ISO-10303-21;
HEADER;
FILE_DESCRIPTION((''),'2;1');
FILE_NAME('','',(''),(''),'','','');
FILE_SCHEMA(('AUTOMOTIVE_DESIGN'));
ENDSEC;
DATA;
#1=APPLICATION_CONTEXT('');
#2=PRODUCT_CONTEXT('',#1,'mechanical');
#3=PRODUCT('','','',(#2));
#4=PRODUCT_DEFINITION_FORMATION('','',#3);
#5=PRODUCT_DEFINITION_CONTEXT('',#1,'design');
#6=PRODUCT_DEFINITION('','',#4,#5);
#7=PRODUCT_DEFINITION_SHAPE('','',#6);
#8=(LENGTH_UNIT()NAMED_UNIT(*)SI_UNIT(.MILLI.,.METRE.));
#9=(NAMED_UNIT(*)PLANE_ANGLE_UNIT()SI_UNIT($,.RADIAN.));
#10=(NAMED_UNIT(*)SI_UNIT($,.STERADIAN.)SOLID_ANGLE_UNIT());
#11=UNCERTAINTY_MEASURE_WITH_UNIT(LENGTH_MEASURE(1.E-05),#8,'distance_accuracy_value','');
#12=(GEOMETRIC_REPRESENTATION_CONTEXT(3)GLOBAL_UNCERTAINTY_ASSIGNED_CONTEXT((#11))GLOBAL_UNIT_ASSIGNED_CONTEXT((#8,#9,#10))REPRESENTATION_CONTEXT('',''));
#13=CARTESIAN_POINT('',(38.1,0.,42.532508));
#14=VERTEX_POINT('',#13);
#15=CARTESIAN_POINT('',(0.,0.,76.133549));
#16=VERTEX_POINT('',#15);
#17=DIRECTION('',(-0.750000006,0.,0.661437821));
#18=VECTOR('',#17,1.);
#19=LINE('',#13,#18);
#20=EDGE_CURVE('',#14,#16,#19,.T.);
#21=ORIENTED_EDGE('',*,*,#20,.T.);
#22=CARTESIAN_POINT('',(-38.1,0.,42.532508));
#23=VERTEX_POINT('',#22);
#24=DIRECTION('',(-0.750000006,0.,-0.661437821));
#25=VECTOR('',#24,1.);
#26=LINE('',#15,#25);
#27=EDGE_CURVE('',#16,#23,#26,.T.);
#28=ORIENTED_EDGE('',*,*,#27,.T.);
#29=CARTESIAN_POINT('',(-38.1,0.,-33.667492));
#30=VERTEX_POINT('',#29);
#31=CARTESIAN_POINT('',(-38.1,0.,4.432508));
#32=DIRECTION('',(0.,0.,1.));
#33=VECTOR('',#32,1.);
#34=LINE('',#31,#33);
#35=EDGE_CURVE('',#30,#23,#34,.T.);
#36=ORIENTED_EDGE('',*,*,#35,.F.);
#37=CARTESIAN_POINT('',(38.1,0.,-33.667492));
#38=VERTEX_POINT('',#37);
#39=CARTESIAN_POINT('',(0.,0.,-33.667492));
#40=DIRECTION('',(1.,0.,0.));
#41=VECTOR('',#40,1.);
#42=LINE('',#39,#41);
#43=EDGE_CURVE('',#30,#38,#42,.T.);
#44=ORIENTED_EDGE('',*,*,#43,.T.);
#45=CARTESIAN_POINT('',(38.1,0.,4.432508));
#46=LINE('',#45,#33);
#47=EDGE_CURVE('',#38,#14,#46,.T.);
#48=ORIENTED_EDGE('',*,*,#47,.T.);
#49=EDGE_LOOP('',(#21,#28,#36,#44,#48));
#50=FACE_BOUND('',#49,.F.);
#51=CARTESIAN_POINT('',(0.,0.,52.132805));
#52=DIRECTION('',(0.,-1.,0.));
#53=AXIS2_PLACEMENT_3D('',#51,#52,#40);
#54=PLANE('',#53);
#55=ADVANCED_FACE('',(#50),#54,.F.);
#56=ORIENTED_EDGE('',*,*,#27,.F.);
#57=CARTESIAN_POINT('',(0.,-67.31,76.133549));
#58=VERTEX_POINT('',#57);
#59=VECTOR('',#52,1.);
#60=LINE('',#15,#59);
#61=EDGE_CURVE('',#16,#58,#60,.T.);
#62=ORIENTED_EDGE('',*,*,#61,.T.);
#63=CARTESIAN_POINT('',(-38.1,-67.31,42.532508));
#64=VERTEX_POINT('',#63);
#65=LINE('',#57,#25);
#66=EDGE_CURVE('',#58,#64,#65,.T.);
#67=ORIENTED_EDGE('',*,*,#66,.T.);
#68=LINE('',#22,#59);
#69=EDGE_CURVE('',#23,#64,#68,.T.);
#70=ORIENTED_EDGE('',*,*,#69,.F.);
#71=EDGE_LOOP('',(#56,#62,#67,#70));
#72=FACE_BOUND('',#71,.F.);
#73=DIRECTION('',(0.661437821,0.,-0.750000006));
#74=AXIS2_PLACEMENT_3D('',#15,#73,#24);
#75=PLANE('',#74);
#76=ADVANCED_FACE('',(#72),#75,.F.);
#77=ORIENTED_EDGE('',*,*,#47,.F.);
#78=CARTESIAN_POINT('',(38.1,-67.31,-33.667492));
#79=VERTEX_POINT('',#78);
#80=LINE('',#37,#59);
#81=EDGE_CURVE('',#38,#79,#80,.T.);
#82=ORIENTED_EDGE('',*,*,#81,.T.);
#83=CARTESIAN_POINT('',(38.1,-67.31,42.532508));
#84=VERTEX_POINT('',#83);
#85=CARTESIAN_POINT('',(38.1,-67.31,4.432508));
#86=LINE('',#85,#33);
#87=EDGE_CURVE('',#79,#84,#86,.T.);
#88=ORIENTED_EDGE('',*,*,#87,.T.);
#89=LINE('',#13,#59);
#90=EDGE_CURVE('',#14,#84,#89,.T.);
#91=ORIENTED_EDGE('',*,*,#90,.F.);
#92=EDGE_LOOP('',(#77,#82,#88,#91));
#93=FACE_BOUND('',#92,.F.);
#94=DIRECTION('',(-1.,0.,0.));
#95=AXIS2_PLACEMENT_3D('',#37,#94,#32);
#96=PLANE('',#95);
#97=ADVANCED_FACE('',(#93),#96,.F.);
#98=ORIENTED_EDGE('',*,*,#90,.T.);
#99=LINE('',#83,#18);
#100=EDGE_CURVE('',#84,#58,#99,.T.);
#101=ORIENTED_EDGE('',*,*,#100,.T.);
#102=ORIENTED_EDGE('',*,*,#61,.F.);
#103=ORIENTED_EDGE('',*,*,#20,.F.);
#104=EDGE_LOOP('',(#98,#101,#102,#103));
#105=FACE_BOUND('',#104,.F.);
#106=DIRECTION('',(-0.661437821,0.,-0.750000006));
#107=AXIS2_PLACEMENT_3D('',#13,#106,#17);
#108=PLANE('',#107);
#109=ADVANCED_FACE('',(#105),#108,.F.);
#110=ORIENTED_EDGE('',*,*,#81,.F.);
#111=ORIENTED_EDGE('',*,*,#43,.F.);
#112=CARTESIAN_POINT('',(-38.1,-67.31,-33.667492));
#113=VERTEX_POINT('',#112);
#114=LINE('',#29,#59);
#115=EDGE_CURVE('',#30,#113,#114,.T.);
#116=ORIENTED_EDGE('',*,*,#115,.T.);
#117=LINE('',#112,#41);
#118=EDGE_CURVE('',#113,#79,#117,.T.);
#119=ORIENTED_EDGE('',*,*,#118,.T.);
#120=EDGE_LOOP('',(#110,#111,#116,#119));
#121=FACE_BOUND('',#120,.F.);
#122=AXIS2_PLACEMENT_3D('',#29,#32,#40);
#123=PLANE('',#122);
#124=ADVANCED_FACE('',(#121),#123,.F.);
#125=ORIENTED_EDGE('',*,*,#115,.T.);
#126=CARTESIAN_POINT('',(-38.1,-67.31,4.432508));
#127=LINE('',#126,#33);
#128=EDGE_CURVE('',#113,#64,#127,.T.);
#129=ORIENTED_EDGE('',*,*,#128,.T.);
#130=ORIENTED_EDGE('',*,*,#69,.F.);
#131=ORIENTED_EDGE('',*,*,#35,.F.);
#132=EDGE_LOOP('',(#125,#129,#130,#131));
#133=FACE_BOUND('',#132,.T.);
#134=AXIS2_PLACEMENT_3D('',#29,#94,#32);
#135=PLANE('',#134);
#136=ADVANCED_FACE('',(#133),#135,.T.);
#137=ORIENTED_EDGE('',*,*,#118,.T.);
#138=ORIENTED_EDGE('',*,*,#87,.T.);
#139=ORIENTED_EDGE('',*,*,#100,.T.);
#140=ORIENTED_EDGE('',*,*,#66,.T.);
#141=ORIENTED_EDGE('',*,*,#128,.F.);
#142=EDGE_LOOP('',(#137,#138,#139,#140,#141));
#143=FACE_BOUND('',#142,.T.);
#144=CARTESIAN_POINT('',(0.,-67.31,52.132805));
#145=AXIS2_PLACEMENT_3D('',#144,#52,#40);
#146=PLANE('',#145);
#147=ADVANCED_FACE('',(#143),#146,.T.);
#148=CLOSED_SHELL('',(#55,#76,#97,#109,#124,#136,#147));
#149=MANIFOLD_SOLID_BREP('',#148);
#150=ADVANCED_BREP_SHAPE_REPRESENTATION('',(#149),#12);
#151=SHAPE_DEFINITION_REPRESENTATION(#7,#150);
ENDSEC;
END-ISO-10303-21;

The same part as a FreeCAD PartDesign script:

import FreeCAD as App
import Part
import Sketcher
Q = App.Units.Quantity

doc = App.newDocument("Part")
params = doc.addObject("Spreadsheet::Sheet", "Params")
for row, (alias, value) in enumerate([
    ("sketch1_width", "3 in"),
    ("sketch1_length", "2 in"),
    ("pad1_length", "2.65 in"),
    ("sketch2_height", "1 in"),
    ("sketch2_width", "0.5 in"),
    ("pad2_length", "0.43 in"),
], start=1):
    params.set(f"A{row}", alias)
    params.set(f"B{row}", "=" + value)
    params.setAlias(f"B{row}", alias)

body = doc.addObject("PartDesign::Body", "Body")

# Sketch on XZ plane
sketch1 = body.newObject("Sketcher::SketchObject", "Sketch")
sketch1.AttachmentSupport = (doc.getObject("XZ_Plane"), [""])
sketch1.MapMode = "FlatFace"
sketch1.addGeometry([
    Part.LineSegment(App.Vector(0, 76, 0), App.Vector(-38, 43, 0)),  # 0
    Part.LineSegment(App.Vector(-38, 43, 0), App.Vector(-38, -34, 0)),  # 1
    Part.LineSegment(App.Vector(-38, -34, 0), App.Vector(38, -34, 0)),  # 2
    Part.LineSegment(App.Vector(38, -34, 0), App.Vector(38, 43, 0)),  # 3
    Part.LineSegment(App.Vector(38, 43, 0), App.Vector(0, 76, 0)),  # 4
], False)
sketch1.addConstraint([
    Sketcher.Constraint("Coincident", 0, 2, 1, 1),
    Sketcher.Constraint("Coincident", 1, 2, 2, 1),
    Sketcher.Constraint("Coincident", 2, 2, 3, 1),
    Sketcher.Constraint("Coincident", 3, 2, 4, 1),
    Sketcher.Constraint("Coincident", 4, 2, 0, 1),
    Sketcher.Constraint("Vertical", 1),
    Sketcher.Constraint("Horizontal", 2),
    Sketcher.Constraint("Vertical", 3),
    Sketcher.Constraint("Symmetric", 0, 2, 3, 2, -2),
    Sketcher.Constraint("PointOnObject", 4, 2, -2),
    Sketcher.Constraint("Equal", 2, 1),
    Sketcher.Constraint("DistanceX", 2, 1, 2, 2, Q("3 in")),
    Sketcher.Constraint("Distance", 0, Q("2 in")),
    Sketcher.Constraint("DistanceY", -1, 1, 4, 2, Q("76.133549 mm")),
])
sketch1.setExpression("Constraints[11]", "Params.sketch1_width")
sketch1.setExpression("Constraints[12]", "Params.sketch1_length")
pad1 = body.newObject("PartDesign::Pad", "Pad")
pad1.Profile = sketch1
pad1.setExpression("Length", "Params.pad1_length")

# Sketch on XZ plane
sketch2 = body.newObject("Sketcher::SketchObject", "Sketch001")
sketch2.AttachmentSupport = (doc.getObject("XZ_Plane"), [""])
sketch2.MapMode = "FlatFace"
sketch2.AttachmentOffset = App.Placement(App.Vector(0, 0, 2.65 * 25.4), App.Rotation())
sketch2.addGeometry([
    Part.LineSegment(App.Vector(-6, -8, 0), App.Vector(-6, -34, 0)),
    Part.LineSegment(App.Vector(-6, -34, 0), App.Vector(6, -34, 0)),
    Part.LineSegment(App.Vector(6, -34, 0), App.Vector(6, -8, 0)),
    Part.LineSegment(App.Vector(6, -8, 0), App.Vector(-6, -8, 0)),
], False)
sketch2.addConstraint([
    Sketcher.Constraint("Coincident", 0, 2, 1, 1),
    Sketcher.Constraint("Coincident", 1, 2, 2, 1),
    Sketcher.Constraint("Coincident", 2, 2, 3, 1),
    Sketcher.Constraint("Coincident", 3, 2, 0, 1),
    Sketcher.Constraint("Vertical", 0),
    Sketcher.Constraint("Horizontal", 1),
    Sketcher.Constraint("Vertical", 2),
    Sketcher.Constraint("Horizontal", 3),
    Sketcher.Constraint("DistanceY", 0, 2, 0, 1, Q("1 in")),
    Sketcher.Constraint("DistanceX", 1, 1, 1, 2, Q("0.5 in")),
    Sketcher.Constraint("DistanceX", 0, 2, -1, 1, Q("0.25 in")),
    Sketcher.Constraint("DistanceY", 0, 2, -1, 1, Q("33.667492 mm")),
])
sketch2.setExpression("Constraints[8]", "Params.sketch2_height")
sketch2.setExpression("Constraints[9]", "Params.sketch2_width")
pad2 = body.newObject("PartDesign::Pad", "Pad001")
pad2.Profile = sketch2
pad2.setExpression("Length", "Params.pad2_length")
pad2.Reversed = True

doc.recompute()
